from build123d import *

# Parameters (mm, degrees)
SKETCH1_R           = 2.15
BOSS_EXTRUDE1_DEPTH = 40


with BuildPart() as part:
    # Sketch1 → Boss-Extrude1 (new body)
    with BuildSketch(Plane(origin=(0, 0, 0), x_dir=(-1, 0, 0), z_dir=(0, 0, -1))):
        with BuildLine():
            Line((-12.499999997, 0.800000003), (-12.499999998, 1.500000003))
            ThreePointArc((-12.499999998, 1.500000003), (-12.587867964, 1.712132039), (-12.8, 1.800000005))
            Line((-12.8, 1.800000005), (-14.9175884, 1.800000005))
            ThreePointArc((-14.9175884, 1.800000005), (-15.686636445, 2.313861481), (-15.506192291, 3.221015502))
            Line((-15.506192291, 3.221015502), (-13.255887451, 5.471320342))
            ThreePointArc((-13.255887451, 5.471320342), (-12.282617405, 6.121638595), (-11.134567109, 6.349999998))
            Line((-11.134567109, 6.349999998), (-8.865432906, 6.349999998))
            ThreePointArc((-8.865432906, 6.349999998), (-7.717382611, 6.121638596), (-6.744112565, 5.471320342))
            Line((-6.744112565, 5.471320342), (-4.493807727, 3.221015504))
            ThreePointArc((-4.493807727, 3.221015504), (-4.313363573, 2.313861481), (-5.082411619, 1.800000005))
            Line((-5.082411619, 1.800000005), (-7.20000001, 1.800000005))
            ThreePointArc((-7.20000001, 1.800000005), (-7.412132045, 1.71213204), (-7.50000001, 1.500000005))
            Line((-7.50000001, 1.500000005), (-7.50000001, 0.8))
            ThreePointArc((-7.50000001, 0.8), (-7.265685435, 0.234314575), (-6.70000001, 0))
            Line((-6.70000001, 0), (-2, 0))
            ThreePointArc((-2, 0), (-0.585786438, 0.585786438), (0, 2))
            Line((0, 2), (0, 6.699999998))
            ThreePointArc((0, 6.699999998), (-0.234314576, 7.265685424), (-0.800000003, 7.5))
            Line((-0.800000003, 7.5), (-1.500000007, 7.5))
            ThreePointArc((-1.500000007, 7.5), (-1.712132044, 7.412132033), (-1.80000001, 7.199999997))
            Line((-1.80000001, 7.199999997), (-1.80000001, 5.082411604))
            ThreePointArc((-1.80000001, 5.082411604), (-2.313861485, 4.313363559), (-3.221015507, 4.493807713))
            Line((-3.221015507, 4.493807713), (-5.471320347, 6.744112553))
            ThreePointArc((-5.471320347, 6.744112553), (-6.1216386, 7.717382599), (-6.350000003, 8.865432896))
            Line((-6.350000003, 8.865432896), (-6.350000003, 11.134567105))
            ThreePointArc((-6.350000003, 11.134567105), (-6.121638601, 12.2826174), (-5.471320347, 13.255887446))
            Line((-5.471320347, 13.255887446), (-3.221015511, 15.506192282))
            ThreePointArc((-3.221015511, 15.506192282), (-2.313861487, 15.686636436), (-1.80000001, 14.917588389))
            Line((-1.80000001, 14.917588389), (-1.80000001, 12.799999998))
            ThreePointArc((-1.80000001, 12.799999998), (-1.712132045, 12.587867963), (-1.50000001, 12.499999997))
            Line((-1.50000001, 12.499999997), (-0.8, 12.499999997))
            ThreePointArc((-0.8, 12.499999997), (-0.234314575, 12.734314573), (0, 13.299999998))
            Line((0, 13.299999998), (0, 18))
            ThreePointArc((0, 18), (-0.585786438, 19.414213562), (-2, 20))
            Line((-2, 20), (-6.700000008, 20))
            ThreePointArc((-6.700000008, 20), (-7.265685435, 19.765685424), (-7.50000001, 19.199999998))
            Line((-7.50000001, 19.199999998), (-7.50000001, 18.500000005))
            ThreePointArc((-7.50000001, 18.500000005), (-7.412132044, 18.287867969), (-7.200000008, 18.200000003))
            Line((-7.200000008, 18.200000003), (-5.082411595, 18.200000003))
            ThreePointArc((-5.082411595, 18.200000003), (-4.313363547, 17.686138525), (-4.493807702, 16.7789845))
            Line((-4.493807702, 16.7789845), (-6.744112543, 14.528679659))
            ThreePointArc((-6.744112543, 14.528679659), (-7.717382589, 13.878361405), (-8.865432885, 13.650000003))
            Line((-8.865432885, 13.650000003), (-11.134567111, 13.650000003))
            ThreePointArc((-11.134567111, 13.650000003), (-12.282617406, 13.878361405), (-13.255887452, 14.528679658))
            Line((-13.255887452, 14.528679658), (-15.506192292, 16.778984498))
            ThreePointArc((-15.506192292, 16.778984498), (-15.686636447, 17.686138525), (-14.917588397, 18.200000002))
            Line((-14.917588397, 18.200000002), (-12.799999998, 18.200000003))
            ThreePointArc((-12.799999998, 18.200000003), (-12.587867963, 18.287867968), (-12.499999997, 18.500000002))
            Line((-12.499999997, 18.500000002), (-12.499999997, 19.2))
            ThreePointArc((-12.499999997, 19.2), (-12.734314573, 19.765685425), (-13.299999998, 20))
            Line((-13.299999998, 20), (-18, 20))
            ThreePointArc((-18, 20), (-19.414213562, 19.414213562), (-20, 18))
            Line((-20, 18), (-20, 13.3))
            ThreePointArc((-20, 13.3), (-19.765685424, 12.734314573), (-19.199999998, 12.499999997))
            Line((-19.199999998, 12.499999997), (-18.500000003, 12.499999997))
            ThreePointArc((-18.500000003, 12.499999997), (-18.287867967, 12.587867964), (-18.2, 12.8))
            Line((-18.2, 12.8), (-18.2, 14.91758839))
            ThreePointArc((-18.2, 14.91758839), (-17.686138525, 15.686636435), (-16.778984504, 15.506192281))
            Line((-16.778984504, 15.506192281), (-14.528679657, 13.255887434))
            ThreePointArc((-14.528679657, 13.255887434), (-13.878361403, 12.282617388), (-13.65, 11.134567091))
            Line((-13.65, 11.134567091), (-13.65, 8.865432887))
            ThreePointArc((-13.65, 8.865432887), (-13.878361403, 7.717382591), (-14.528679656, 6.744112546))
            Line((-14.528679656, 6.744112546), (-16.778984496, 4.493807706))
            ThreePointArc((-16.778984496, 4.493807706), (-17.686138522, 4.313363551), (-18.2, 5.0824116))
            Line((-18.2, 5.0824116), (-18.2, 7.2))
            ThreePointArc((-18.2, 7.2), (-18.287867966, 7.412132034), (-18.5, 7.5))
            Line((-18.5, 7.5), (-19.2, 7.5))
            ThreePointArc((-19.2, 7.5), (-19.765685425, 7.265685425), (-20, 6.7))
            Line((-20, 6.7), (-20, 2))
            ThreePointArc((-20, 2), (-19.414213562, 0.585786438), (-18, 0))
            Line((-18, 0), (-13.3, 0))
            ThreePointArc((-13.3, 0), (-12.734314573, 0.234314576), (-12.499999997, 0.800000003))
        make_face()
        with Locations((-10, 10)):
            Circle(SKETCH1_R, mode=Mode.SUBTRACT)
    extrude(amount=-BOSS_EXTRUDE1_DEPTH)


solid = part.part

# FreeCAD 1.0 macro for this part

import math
import FreeCAD as App
import Part
import Sketcher
from FreeCAD import Vector
Q = App.Units.Quantity

doc = App.newDocument("Part")
params = doc.addObject("Spreadsheet::Sheet", "Params")
for row, (alias, value) in enumerate([
    ("sketch1_radius", "3 mm"),
    ("sketch1_radius2", "2 mm"),
    ("sketch1_diameter", "4.3 mm"),
    ("sketch1_radius3", "0.3 mm"),
    ("sketch1_radius4", "0.8 mm"),
    ("pad1_length", "40 mm"),
], start=1):
    params.set(f"A{row}", alias)
    params.set(f"B{row}", "=" + value)
    params.setAlias(f"B{row}", alias)

body = doc.addObject("PartDesign::Body", "Body")

# Sketch on XY plane
sketch1 = body.newObject("Sketcher::SketchObject", "Sketch")
sketch1.AttachmentSupport = (doc.getObject("XY_Plane"), [""])
sketch1.MapMode = "FlatFace"
sketch1.addGeometry(Part.LineSegment(Vector(12.5, 0.8, 0), Vector(12.5, 1.5, 0)), False)
sketch1.addGeometry(Part.ArcOfCircle(Part.Circle(Vector(12.8, 1.5, 0), Vector(0, 0, 1), 0.3), math.radians(90), math.radians(180)), False)
sketch1.addGeometry(Part.LineSegment(Vector(12.8, 1.8, 0), Vector(14.917588, 1.8, 0)), False)
sketch1.addGeometry(Part.ArcOfCircle(Part.Circle(Vector(14.917588, 2.632412, 0), Vector(0, 0, 1), 0.832412), math.radians(-90), math.radians(45)), False)
sketch1.addGeometry(Part.LineSegment(Vector(15.506192, 3.221016, 0), Vector(13.255887, 5.47132, 0)), False)
sketch1.addGeometry(Part.ArcOfCircle(Part.Circle(Vector(11.134567, 3.35, 0), Vector(0, 0, 1), 3), math.radians(45), math.radians(90)), False)
sketch1.addGeometry(Part.LineSegment(Vector(11.134567, 6.35, 0), Vector(8.865433, 6.35, 0)), False)
sketch1.addGeometry(Part.ArcOfCircle(Part.Circle(Vector(8.865433, 3.35, 0), Vector(0, 0, 1), 3), math.radians(90), math.radians(135)), False)
sketch1.addGeometry(Part.LineSegment(Vector(6.744113, 5.47132, 0), Vector(4.493808, 3.221016, 0)), False)
sketch1.addGeometry(Part.ArcOfCircle(Part.Circle(Vector(5.082412, 2.632412, 0), Vector(0, 0, 1), 0.832412), math.radians(135), math.radians(270)), False)
sketch1.addGeometry(Part.LineSegment(Vector(5.082412, 1.8, 0), Vector(7.2, 1.8, 0)), False)
sketch1.addGeometry(Part.ArcOfCircle(Part.Circle(Vector(7.2, 1.5, 0), Vector(0, 0, 1), 0.3), math.radians(0), math.radians(90)), False)
sketch1.addGeometry(Part.LineSegment(Vector(7.5, 1.5, 0), Vector(7.5, 0.8, 0)), False)
sketch1.addGeometry(Part.ArcOfCircle(Part.Circle(Vector(6.7, 0.8, 0), Vector(0, 0, 1), 0.8), math.radians(-90), math.radians(0)), False)
sketch1.addGeometry(Part.LineSegment(Vector(6.7, 0, 0), Vector(2, 0, 0)), False)
sketch1.addGeometry(Part.ArcOfCircle(Part.Circle(Vector(2, 2, 0), Vector(0, 0, 1), 2), math.radians(-180), math.radians(-90)), False)
sketch1.addGeometry(Part.LineSegment(Vector(0, 2, 0), Vector(0, 6.7, 0)), False)
sketch1.addGeometry(Part.ArcOfCircle(Part.Circle(Vector(0.8, 6.7, 0), Vector(0, 0, 1), 0.8), math.radians(90), math.radians(180)), False)
sketch1.addGeometry(Part.LineSegment(Vector(0.8, 7.5, 0), Vector(1.5, 7.5, 0)), False)
sketch1.addGeometry(Part.ArcOfCircle(Part.Circle(Vector(1.5, 7.2, 0), Vector(0, 0, 1), 0.3), math.radians(0), math.radians(90)), False)
sketch1.addGeometry(Part.LineSegment(Vector(1.8, 7.2, 0), Vector(1.8, 5.082412, 0)), False)
sketch1.addGeometry(Part.ArcOfCircle(Part.Circle(Vector(2.632412, 5.082412, 0), Vector(0, 0, 1), 0.832412), math.radians(180), math.radians(315)), False)
sketch1.addGeometry(Part.LineSegment(Vector(3.221016, 4.493808, 0), Vector(5.47132, 6.744113, 0)), False)
sketch1.addGeometry(Part.ArcOfCircle(Part.Circle(Vector(3.35, 8.865433, 0), Vector(0, 0, 1), 3), math.radians(-45), math.radians(0)), False)
sketch1.addGeometry(Part.LineSegment(Vector(6.35, 8.865433, 0), Vector(6.35, 11.134567, 0)), False)
sketch1.addGeometry(Part.ArcOfCircle(Part.Circle(Vector(3.35, 11.134567, 0), Vector(0, 0, 1), 3), math.radians(0), math.radians(45)), False)
sketch1.addGeometry(Part.LineSegment(Vector(5.47132, 13.255887, 0), Vector(3.221016, 15.506192, 0)), False)
sketch1.addGeometry(Part.ArcOfCircle(Part.Circle(Vector(2.632412, 14.917588, 0), Vector(0, 0, 1), 0.832412), math.radians(45), math.radians(180)), False)
sketch1.addGeometry(Part.LineSegment(Vector(1.8, 14.917588, 0), Vector(1.8, 12.8, 0)), False)
sketch1.addGeometry(Part.ArcOfCircle(Part.Circle(Vector(1.5, 12.8, 0), Vector(0, 0, 1), 0.3), math.radians(-90), math.radians(0)), False)
sketch1.addGeometry(Part.LineSegment(Vector(1.5, 12.5, 0), Vector(0.8, 12.5, 0)), False)
sketch1.addGeometry(Part.ArcOfCircle(Part.Circle(Vector(0.8, 13.3, 0), Vector(0, 0, 1), 0.8), math.radians(-180), math.radians(-90)), False)
sketch1.addGeometry(Part.LineSegment(Vector(0, 13.3, 0), Vector(0, 18, 0)), False)
sketch1.addGeometry(Part.ArcOfCircle(Part.Circle(Vector(2, 18, 0), Vector(0, 0, 1), 2), math.radians(90), math.radians(180)), False)
sketch1.addGeometry(Part.LineSegment(Vector(2, 20, 0), Vector(6.7, 20, 0)), False)
sketch1.addGeometry(Part.ArcOfCircle(Part.Circle(Vector(6.7, 19.2, 0), Vector(0, 0, 1), 0.8), math.radians(0), math.radians(90)), False)
sketch1.addGeometry(Part.LineSegment(Vector(7.5, 19.2, 0), Vector(7.5, 18.5, 0)), False)
sketch1.addGeometry(Part.ArcOfCircle(Part.Circle(Vector(7.2, 18.5, 0), Vector(0, 0, 1), 0.3), math.radians(-90), math.radians(0)), False)
sketch1.addGeometry(Part.LineSegment(Vector(7.2, 18.2, 0), Vector(5.082412, 18.2, 0)), False)
sketch1.addGeometry(Part.ArcOfCircle(Part.Circle(Vector(5.082412, 17.367588, 0), Vector(0, 0, 1), 0.832412), math.radians(90), math.radians(225)), False)
sketch1.addGeometry(Part.LineSegment(Vector(4.493808, 16.778984, 0), Vector(6.744113, 14.52868, 0)), False)
sketch1.addGeometry(Part.ArcOfCircle(Part.Circle(Vector(8.865433, 16.65, 0), Vector(0, 0, 1), 3), math.radians(-135), math.radians(-90)), False)
sketch1.addGeometry(Part.LineSegment(Vector(8.865433, 13.65, 0), Vector(11.134567, 13.65, 0)), False)
sketch1.addGeometry(Part.ArcOfCircle(Part.Circle(Vector(11.134567, 16.65, 0), Vector(0, 0, 1), 3), math.radians(-90), math.radians(-45)), False)
sketch1.addGeometry(Part.LineSegment(Vector(13.255887, 14.52868, 0), Vector(15.506192, 16.778984, 0)), False)
sketch1.addGeometry(Part.ArcOfCircle(Part.Circle(Vector(14.917588, 17.367588, 0), Vector(0, 0, 1), 0.832412), math.radians(-45), math.radians(90)), False)
sketch1.addGeometry(Part.LineSegment(Vector(14.917588, 18.2, 0), Vector(12.8, 18.2, 0)), False)
sketch1.addGeometry(Part.ArcOfCircle(Part.Circle(Vector(12.8, 18.5, 0), Vector(0, 0, 1), 0.3), math.radians(-180), math.radians(-90)), False)
sketch1.addGeometry(Part.LineSegment(Vector(12.5, 18.5, 0), Vector(12.5, 19.2, 0)), False)
sketch1.addGeometry(Part.ArcOfCircle(Part.Circle(Vector(13.3, 19.2, 0), Vector(0, 0, 1), 0.8), math.radians(90), math.radians(180)), False)
sketch1.addGeometry(Part.LineSegment(Vector(13.3, 20, 0), Vector(18, 20, 0)), False)
sketch1.addGeometry(Part.ArcOfCircle(Part.Circle(Vector(18, 18, 0), Vector(0, 0, 1), 2), math.radians(0), math.radians(90)), False)
sketch1.addGeometry(Part.LineSegment(Vector(20, 18, 0), Vector(20, 13.3, 0)), False)
sketch1.addGeometry(Part.ArcOfCircle(Part.Circle(Vector(19.2, 13.3, 0), Vector(0, 0, 1), 0.8), math.radians(-90), math.radians(0)), False)
sketch1.addGeometry(Part.LineSegment(Vector(19.2, 12.5, 0), Vector(18.5, 12.5, 0)), False)
sketch1.addGeometry(Part.ArcOfCircle(Part.Circle(Vector(18.5, 12.8, 0), Vector(0, 0, 1), 0.3), math.radians(-180), math.radians(-90)), False)
sketch1.addGeometry(Part.LineSegment(Vector(18.2, 12.8, 0), Vector(18.2, 14.917588, 0)), False)
sketch1.addGeometry(Part.ArcOfCircle(Part.Circle(Vector(17.367588, 14.917588, 0), Vector(0, 0, 1), 0.832412), math.radians(0), math.radians(135)), False)
sketch1.addGeometry(Part.LineSegment(Vector(16.778985, 15.506192, 0), Vector(14.52868, 13.255887, 0)), False)
sketch1.addGeometry(Part.ArcOfCircle(Part.Circle(Vector(16.65, 11.134567, 0), Vector(0, 0, 1), 3), math.radians(135), math.radians(180)), False)
sketch1.addGeometry(Part.LineSegment(Vector(13.65, 11.134567, 0), Vector(13.65, 8.865433, 0)), False)
sketch1.addGeometry(Part.ArcOfCircle(Part.Circle(Vector(16.65, 8.865433, 0), Vector(0, 0, 1), 3), math.radians(-180), math.radians(-135)), False)
sketch1.addGeometry(Part.LineSegment(Vector(14.52868, 6.744113, 0), Vector(16.778984, 4.493808, 0)), False)
sketch1.addGeometry(Part.ArcOfCircle(Part.Circle(Vector(17.367588, 5.082412, 0), Vector(0, 0, 1), 0.832412), math.radians(-135), math.radians(0)), False)
sketch1.addGeometry(Part.LineSegment(Vector(18.2, 5.082412, 0), Vector(18.2, 7.2, 0)), False)
sketch1.addGeometry(Part.ArcOfCircle(Part.Circle(Vector(18.5, 7.2, 0), Vector(0, 0, 1), 0.3), math.radians(90), math.radians(180)), False)
sketch1.addGeometry(Part.LineSegment(Vector(18.5, 7.5, 0), Vector(19.2, 7.5, 0)), False)
sketch1.addGeometry(Part.ArcOfCircle(Part.Circle(Vector(19.2, 6.7, 0), Vector(0, 0, 1), 0.8), math.radians(0), math.radians(90)), False)
sketch1.addGeometry(Part.LineSegment(Vector(20, 6.7, 0), Vector(20, 2, 0)), False)
sketch1.addGeometry(Part.ArcOfCircle(Part.Circle(Vector(18, 2, 0), Vector(0, 0, 1), 2), math.radians(-90), math.radians(0)), False)
sketch1.addGeometry(Part.LineSegment(Vector(18, 0, 0), Vector(13.3, 0, 0)), False)
sketch1.addGeometry(Part.ArcOfCircle(Part.Circle(Vector(13.3, 0.8, 0), Vector(0, 0, 1), 0.8), math.radians(180), math.radians(270)), False)
sketch1.addGeometry(Part.Circle(Vector(10, 10, 0), Vector(0, 0, 1), 2.15), False)
sketch1.addConstraint(Sketcher.Constraint("Tangent", 0, 2, 1, 2))
sketch1.addConstraint(Sketcher.Constraint("Tangent", 1, 1, 2, 1))
sketch1.addConstraint(Sketcher.Constraint("Tangent", 2, 2, 3, 1))
sketch1.addConstraint(Sketcher.Constraint("Tangent", 3, 2, 4, 1))
sketch1.addConstraint(Sketcher.Constraint("Tangent", 4, 2, 5, 1))
sketch1.addConstraint(Sketcher.Constraint("Tangent", 5, 2, 6, 1))
sketch1.addConstraint(Sketcher.Constraint("Tangent", 6, 2, 7, 1))
sketch1.addConstraint(Sketcher.Constraint("Tangent", 7, 2, 8, 1))
sketch1.addConstraint(Sketcher.Constraint("Tangent", 8, 2, 9, 1))
sketch1.addConstraint(Sketcher.Constraint("Tangent", 9, 2, 10, 1))
sketch1.addConstraint(Sketcher.Constraint("Tangent", 10, 2, 11, 2))
sketch1.addConstraint(Sketcher.Constraint("Tangent", 11, 1, 12, 1))
sketch1.addConstraint(Sketcher.Constraint("Tangent", 12, 2, 13, 2))
sketch1.addConstraint(Sketcher.Constraint("Tangent", 13, 1, 14, 1))
sketch1.addConstraint(Sketcher.Constraint("Tangent", 14, 2, 15, 2))
sketch1.addConstraint(Sketcher.Constraint("Tangent", 15, 1, 16, 1))
sketch1.addConstraint(Sketcher.Constraint("Tangent", 16, 2, 17, 2))
sketch1.addConstraint(Sketcher.Constraint("Tangent", 17, 1, 18, 1))
sketch1.addConstraint(Sketcher.Constraint("Tangent", 18, 2, 19, 2))
sketch1.addConstraint(Sketcher.Constraint("Tangent", 19, 1, 20, 1))
sketch1.addConstraint(Sketcher.Constraint("Tangent", 20, 2, 21, 1))
sketch1.addConstraint(Sketcher.Constraint("Tangent", 21, 2, 22, 1))
sketch1.addConstraint(Sketcher.Constraint("Tangent", 22, 2, 23, 1))
sketch1.addConstraint(Sketcher.Constraint("Tangent", 23, 2, 24, 1))
sketch1.addConstraint(Sketcher.Constraint("Tangent", 24, 2, 25, 1))
sketch1.addConstraint(Sketcher.Constraint("Tangent", 25, 2, 26, 1))
sketch1.addConstraint(Sketcher.Constraint("Tangent", 26, 2, 27, 1))
sketch1.addConstraint(Sketcher.Constraint("Tangent", 27, 2, 28, 1))
sketch1.addConstraint(Sketcher.Constraint("Tangent", 28, 2, 29, 2))
sketch1.addConstraint(Sketcher.Constraint("Tangent", 29, 1, 30, 1))
sketch1.addConstraint(Sketcher.Constraint("Tangent", 30, 2, 31, 2))
sketch1.addConstraint(Sketcher.Constraint("Tangent", 31, 1, 32, 1))
sketch1.addConstraint(Sketcher.Constraint("Tangent", 32, 2, 33, 2))
sketch1.addConstraint(Sketcher.Constraint("Tangent", 33, 1, 34, 1))
sketch1.addConstraint(Sketcher.Constraint("Tangent", 34, 2, 35, 2))
sketch1.addConstraint(Sketcher.Constraint("Tangent", 35, 1, 36, 1))
sketch1.addConstraint(Sketcher.Constraint("Tangent", 36, 2, 37, 2))
sketch1.addConstraint(Sketcher.Constraint("Tangent", 37, 1, 38, 1))
sketch1.addConstraint(Sketcher.Constraint("Tangent", 38, 2, 39, 1))
sketch1.addConstraint(Sketcher.Constraint("Tangent", 39, 2, 40, 1))
sketch1.addConstraint(Sketcher.Constraint("Tangent", 40, 2, 41, 1))
sketch1.addConstraint(Sketcher.Constraint("Tangent", 41, 2, 42, 1))
sketch1.addConstraint(Sketcher.Constraint("Tangent", 42, 2, 43, 1))
sketch1.addConstraint(Sketcher.Constraint("Tangent", 43, 2, 44, 1))
sketch1.addConstraint(Sketcher.Constraint("Tangent", 44, 2, 45, 1))
sketch1.addConstraint(Sketcher.Constraint("Tangent", 45, 2, 46, 1))
sketch1.addConstraint(Sketcher.Constraint("Tangent", 46, 2, 47, 2))
sketch1.addConstraint(Sketcher.Constraint("Tangent", 47, 1, 48, 1))
sketch1.addConstraint(Sketcher.Constraint("Tangent", 48, 2, 49, 2))
sketch1.addConstraint(Sketcher.Constraint("Tangent", 49, 1, 50, 1))
sketch1.addConstraint(Sketcher.Constraint("Tangent", 50, 2, 51, 2))
sketch1.addConstraint(Sketcher.Constraint("Tangent", 51, 1, 52, 1))
sketch1.addConstraint(Sketcher.Constraint("Tangent", 52, 2, 53, 2))
sketch1.addConstraint(Sketcher.Constraint("Tangent", 53, 1, 54, 1))
sketch1.addConstraint(Sketcher.Constraint("Tangent", 54, 2, 55, 2))
sketch1.addConstraint(Sketcher.Constraint("Tangent", 55, 1, 56, 1))
sketch1.addConstraint(Sketcher.Constraint("Tangent", 56, 2, 57, 1))
sketch1.addConstraint(Sketcher.Constraint("Tangent", 57, 2, 58, 1))
sketch1.addConstraint(Sketcher.Constraint("Tangent", 58, 2, 59, 1))
sketch1.addConstraint(Sketcher.Constraint("Tangent", 59, 2, 60, 1))
sketch1.addConstraint(Sketcher.Constraint("Tangent", 60, 2, 61, 1))
sketch1.addConstraint(Sketcher.Constraint("Tangent", 61, 2, 62, 1))
sketch1.addConstraint(Sketcher.Constraint("Tangent", 62, 2, 63, 1))
sketch1.addConstraint(Sketcher.Constraint("Tangent", 63, 2, 64, 1))
sketch1.addConstraint(Sketcher.Constraint("Tangent", 64, 2, 65, 2))
sketch1.addConstraint(Sketcher.Constraint("Tangent", 65, 1, 66, 1))
sketch1.addConstraint(Sketcher.Constraint("Tangent", 66, 2, 67, 2))
sketch1.addConstraint(Sketcher.Constraint("Tangent", 67, 1, 68, 1))
sketch1.addConstraint(Sketcher.Constraint("Tangent", 68, 2, 69, 2))
sketch1.addConstraint(Sketcher.Constraint("Tangent", 69, 1, 70, 1))
sketch1.addConstraint(Sketcher.Constraint("Tangent", 70, 2, 71, 2))
sketch1.addConstraint(Sketcher.Constraint("Tangent", 71, 1, 0, 1))
sketch1.addConstraint(Sketcher.Constraint("Vertical", 0))
sketch1.addConstraint(Sketcher.Constraint("Horizontal", 2))
sketch1.addConstraint(Sketcher.Constraint("Horizontal", 6))
sketch1.addConstraint(Sketcher.Constraint("Horizontal", 10))
sketch1.addConstraint(Sketcher.Constraint("Vertical", 12))
sketch1.addConstraint(Sketcher.Constraint("Horizontal", 14))
sketch1.addConstraint(Sketcher.Constraint("Vertical", 16))
sketch1.addConstraint(Sketcher.Constraint("Horizontal", 18))
sketch1.addConstraint(Sketcher.Constraint("Vertical", 20))
sketch1.addConstraint(Sketcher.Constraint("Vertical", 24))
sketch1.addConstraint(Sketcher.Constraint("Vertical", 28))
sketch1.addConstraint(Sketcher.Constraint("Horizontal", 30))
sketch1.addConstraint(Sketcher.Constraint("Vertical", 32))
sketch1.addConstraint(Sketcher.Constraint("Horizontal", 34))
sketch1.addConstraint(Sketcher.Constraint("Vertical", 36))
sketch1.addConstraint(Sketcher.Constraint("Horizontal", 38))
sketch1.addConstraint(Sketcher.Constraint("Horizontal", 42))
sketch1.addConstraint(Sketcher.Constraint("Horizontal", 46))
sketch1.addConstraint(Sketcher.Constraint("Vertical", 48))
sketch1.addConstraint(Sketcher.Constraint("Horizontal", 50))
sketch1.addConstraint(Sketcher.Constraint("Vertical", 52))
sketch1.addConstraint(Sketcher.Constraint("Horizontal", 54))
sketch1.addConstraint(Sketcher.Constraint("Vertical", 56))
sketch1.addConstraint(Sketcher.Constraint("Vertical", 60))
sketch1.addConstraint(Sketcher.Constraint("Vertical", 64))
sketch1.addConstraint(Sketcher.Constraint("Horizontal", 66))
sketch1.addConstraint(Sketcher.Constraint("Vertical", 68))
sketch1.addConstraint(Sketcher.Constraint("Horizontal", 70))
sketch1.addConstraint(Sketcher.Constraint("Equal", 5, 7))
sketch1.addConstraint(Sketcher.Constraint("Equal", 3, 9))
sketch1.addConstraint(Sketcher.Constraint("Equal", 1, 11))
sketch1.addConstraint(Sketcher.Constraint("Equal", 13, 17))
sketch1.addConstraint(Sketcher.Constraint("Equal", 11, 19))
sketch1.addConstraint(Sketcher.Constraint("Equal", 9, 21))
sketch1.addConstraint(Sketcher.Constraint("Equal", 7, 23))
sketch1.addConstraint(Sketcher.Constraint("Equal", 23, 25))
sketch1.addConstraint(Sketcher.Constraint("Equal", 21, 27))
sketch1.addConstraint(Sketcher.Constraint("Equal", 19, 29))
sketch1.addConstraint(Sketcher.Constraint("Equal", 17, 31))
sketch1.addConstraint(Sketcher.Constraint("Equal", 15, 33))
sketch1.addConstraint(Sketcher.Constraint("Equal", 31, 35))
sketch1.addConstraint(Sketcher.Constraint("Equal", 29, 37))
sketch1.addConstraint(Sketcher.Constraint("Equal", 27, 39))
sketch1.addConstraint(Sketcher.Constraint("Equal", 25, 41))
sketch1.addConstraint(Sketcher.Constraint("Equal", 41, 43))
sketch1.addConstraint(Sketcher.Constraint("Equal", 39, 45))
sketch1.addConstraint(Sketcher.Constraint("Equal", 37, 47))
sketch1.addConstraint(Sketcher.Constraint("Equal", 35, 49))
sketch1.addConstraint(Sketcher.Constraint("Equal", 33, 51))
sketch1.addConstraint(Sketcher.Constraint("Equal", 49, 53))
sketch1.addConstraint(Sketcher.Constraint("Equal", 47, 55))
sketch1.addConstraint(Sketcher.Constraint("Equal", 45, 57))
sketch1.addConstraint(Sketcher.Constraint("Equal", 43, 59))
sketch1.addConstraint(Sketcher.Constraint("Equal", 59, 61))
sketch1.addConstraint(Sketcher.Constraint("Equal", 57, 63))
sketch1.addConstraint(Sketcher.Constraint("Equal", 55, 65))
sketch1.addConstraint(Sketcher.Constraint("Equal", 53, 67))
sketch1.addConstraint(Sketcher.Constraint("Equal", 51, 69))
sketch1.addConstraint(Sketcher.Constraint("Equal", 67, 71))
sketch1.addConstraint(Sketcher.Constraint("PointOnObject", 13, 1, -1))
sketch1.addConstraint(Sketcher.Constraint("PointOnObject", 15, 1, -2))
sketch1.addConstraint(Sketcher.Constraint("PointOnObject", 31, 1, -2))
sketch1.addConstraint(Sketcher.Constraint("PointOnObject", 69, 1, -1))
sketch1.addConstraint(Sketcher.Constraint("Perpendicular", 4, 8))
sketch1.addConstraint(Sketcher.Constraint("Parallel", 8, 22))
sketch1.addConstraint(Sketcher.Constraint("Perpendicular", 22, 26))
sketch1.addConstraint(Sketcher.Constraint("Parallel", 26, 40))
sketch1.addConstraint(Sketcher.Constraint("Perpendicular", 40, 44))
sketch1.addConstraint(Sketcher.Constraint("Parallel", 44, 58))
sketch1.addConstraint(Sketcher.Constraint("Perpendicular", 58, 62))
sketch1.addConstraint(Sketcher.Constraint("Horizontal", 3, 3, 9, 3))
sketch1.addConstraint(Sketcher.Constraint("Horizontal", 39, 3, 45, 3))
sketch1.addConstraint(Sketcher.Constraint("Horizontal", 35, 3, 49, 3))
sketch1.addConstraint(Sketcher.Constraint("Horizontal", 31, 3, 53, 3))
sketch1.addConstraint(Sketcher.Constraint("Horizontal", 27, 3, 57, 3))
sketch1.addConstraint(Sketcher.Constraint("Horizontal", 25, 3, 59, 3))
sketch1.addConstraint(Sketcher.Constraint("Horizontal", 23, 3, 61, 3))
sketch1.addConstraint(Sketcher.Constraint("Horizontal", 21, 3, 63, 3))
sketch1.addConstraint(Sketcher.Constraint("Horizontal", 19, 3, 65, 3))
sketch1.addConstraint(Sketcher.Constraint("Horizontal", 4, 2, 7, 2))
sketch1.addConstraint(Sketcher.Constraint("Vertical", 21, 3, 27, 3))
sketch1.addConstraint(Sketcher.Constraint("Vertical", 13, 3, 35, 3))
sketch1.addConstraint(Sketcher.Constraint("Vertical", 9, 3, 39, 3))
sketch1.addConstraint(Sketcher.Constraint("Vertical", 7, 3, 41, 3))
sketch1.addConstraint(Sketcher.Constraint("Vertical", 5, 3, 43, 3))
sketch1.addConstraint(Sketcher.Constraint("Vertical", 1, 3, 47, 3))
sketch1.addConstraint(Sketcher.Constraint("Vertical", 53, 3, 67, 3))
sketch1.addConstraint(Sketcher.Constraint("Equal", 2, 10))
sketch1.addConstraint(Sketcher.Constraint("Equal", 34, 50))
sketch1.addConstraint(Sketcher.Constraint("Equal", 30, 54))
sketch1.addConstraint(Sketcher.Constraint("Equal", 66, 0))
sketch1.addConstraint(Sketcher.Constraint("Equal", 70, 16))
sketch1.addConstraint(Sketcher.Constraint("Equal", 46, 20))
sketch1.addConstraint(Sketcher.Constraint("Equal", 42, 24))
sketch1.addConstraint(Sketcher.Constraint("Equal", 20, 28))
sketch1.addConstraint(Sketcher.Constraint("Equal", 16, 32))
sketch1.addConstraint(Sketcher.Constraint("Equal", 12, 36))
sketch1.addConstraint(Sketcher.Constraint("Equal", 8, 22))
sketch1.addConstraint(Sketcher.Constraint("Radius", 5, Q("3 mm")))
sketch1.addConstraint(Sketcher.Constraint("Radius", 15, Q("2 mm")))
sketch1.addConstraint(Sketcher.Constraint("Diameter", 72, Q("4.3 mm")))
sketch1.addConstraint(Sketcher.Constraint("Radius", 1, Q("0.3 mm")))
sketch1.addConstraint(Sketcher.Constraint("Radius", 13, Q("0.8 mm")))
sketch1.addConstraint(Sketcher.Constraint("DistanceX", 14, 2, 14, 1, Q("4.7 mm")))
sketch1.addConstraint(Sketcher.Constraint("DistanceX", 18, 1, 18, 2, Q("0.7 mm")))
sketch1.addConstraint(Sketcher.Constraint("DistanceY", -1, 1, 33, 3, Q("18 mm")))
sketch1.addConstraint(Sketcher.Constraint("DistanceX", -1, 1, 72, 3, Q("10 mm")))
sketch1.addConstraint(Sketcher.Constraint("DistanceY", -1, 1, 72, 3, Q("10 mm")))
sketch1.addConstraint(Sketcher.Constraint("DistanceY", -1, 1, 5, 3, Q("3.35 mm")))
sketch1.addConstraint(Sketcher.Constraint("Radius", 3, Q("0.832412 mm")))
sketch1.addConstraint(Sketcher.Constraint("DistanceX", 2, 1, 2, 2, Q("2.117588 mm")))
sketch1.setExpression("Constraints[170]", "Params.sketch1_radius")
sketch1.setExpression("Constraints[171]", "Params.sketch1_radius2")
sketch1.setExpression("Constraints[172]", "Params.sketch1_diameter")
sketch1.setExpression("Constraints[173]", "Params.sketch1_radius3")
sketch1.setExpression("Constraints[174]", "Params.sketch1_radius4")
pad1 = body.newObject("PartDesign::Pad", "Pad")
pad1.Profile = sketch1
pad1.setExpression("Length", "Params.pad1_length")

doc.recompute()
